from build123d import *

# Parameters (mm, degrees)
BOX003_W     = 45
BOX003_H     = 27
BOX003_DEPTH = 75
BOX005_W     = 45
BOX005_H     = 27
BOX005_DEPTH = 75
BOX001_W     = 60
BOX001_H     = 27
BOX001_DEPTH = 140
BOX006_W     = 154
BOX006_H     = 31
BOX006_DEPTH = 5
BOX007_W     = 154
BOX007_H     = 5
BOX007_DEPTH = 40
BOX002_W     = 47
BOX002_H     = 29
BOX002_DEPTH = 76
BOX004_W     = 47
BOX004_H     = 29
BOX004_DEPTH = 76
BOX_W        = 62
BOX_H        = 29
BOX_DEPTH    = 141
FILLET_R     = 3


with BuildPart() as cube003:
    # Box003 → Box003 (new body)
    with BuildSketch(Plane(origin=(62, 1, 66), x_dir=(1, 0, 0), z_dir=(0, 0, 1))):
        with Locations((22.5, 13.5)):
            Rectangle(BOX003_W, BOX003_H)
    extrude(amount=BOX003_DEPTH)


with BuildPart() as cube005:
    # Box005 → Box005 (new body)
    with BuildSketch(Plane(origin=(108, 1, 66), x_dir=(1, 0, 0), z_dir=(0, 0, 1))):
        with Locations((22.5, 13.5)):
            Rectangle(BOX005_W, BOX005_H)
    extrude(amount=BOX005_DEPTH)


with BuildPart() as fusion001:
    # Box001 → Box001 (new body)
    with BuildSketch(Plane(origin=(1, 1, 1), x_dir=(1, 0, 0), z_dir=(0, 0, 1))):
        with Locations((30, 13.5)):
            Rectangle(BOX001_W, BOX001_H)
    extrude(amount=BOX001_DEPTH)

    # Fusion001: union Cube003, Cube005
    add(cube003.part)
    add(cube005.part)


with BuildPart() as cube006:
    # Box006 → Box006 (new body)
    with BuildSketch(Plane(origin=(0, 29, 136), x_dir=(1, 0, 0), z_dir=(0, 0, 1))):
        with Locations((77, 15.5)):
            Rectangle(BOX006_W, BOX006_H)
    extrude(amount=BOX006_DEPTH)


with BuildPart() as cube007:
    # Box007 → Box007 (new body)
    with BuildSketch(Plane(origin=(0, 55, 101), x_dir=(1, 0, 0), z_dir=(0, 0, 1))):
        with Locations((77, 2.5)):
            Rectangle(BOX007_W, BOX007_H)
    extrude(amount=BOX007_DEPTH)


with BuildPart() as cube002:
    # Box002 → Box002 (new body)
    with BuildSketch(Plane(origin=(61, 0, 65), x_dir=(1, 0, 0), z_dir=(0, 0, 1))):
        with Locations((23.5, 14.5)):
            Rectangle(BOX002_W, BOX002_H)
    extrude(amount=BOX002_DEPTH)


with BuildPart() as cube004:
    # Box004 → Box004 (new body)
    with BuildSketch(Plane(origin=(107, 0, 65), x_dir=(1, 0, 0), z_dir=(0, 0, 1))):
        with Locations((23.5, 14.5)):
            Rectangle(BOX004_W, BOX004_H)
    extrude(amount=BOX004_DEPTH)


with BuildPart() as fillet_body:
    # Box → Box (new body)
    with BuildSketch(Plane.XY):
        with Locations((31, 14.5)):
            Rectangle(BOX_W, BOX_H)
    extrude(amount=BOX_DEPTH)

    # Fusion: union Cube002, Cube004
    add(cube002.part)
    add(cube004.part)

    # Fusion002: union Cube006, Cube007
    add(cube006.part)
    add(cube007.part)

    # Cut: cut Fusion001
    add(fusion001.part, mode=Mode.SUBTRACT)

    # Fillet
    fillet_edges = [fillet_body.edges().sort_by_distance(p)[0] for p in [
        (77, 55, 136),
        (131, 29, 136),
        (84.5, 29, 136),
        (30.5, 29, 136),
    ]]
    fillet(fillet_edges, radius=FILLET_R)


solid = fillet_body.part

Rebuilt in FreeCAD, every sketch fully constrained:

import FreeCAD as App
import Part
import Sketcher
Q = App.Units.Quantity


def edges_at(feature, points):
    """Names of the edges that pass closest to the given points."""
    edges = feature.Shape.Edges
    near = lambda p: min(range(len(edges)), key=lambda i: edges[i].distToShape(Part.Vertex(*p))[0])
    return sorted({f"Edge{near(p) + 1}" for p in points})

doc = App.newDocument("Part")
body = doc.addObject("PartDesign::Body", "Body")

# Sketch on XY plane
sketch1 = body.newObject("Sketcher::SketchObject", "Sketch")
sketch1.AttachmentSupport = (doc.getObject("XY_Plane"), [""])
sketch1.MapMode = "FlatFace"
sketch1.AttachmentOffset = App.Placement(App.Vector(0, 0, 66), App.Rotation())
sketch1.addGeometry([
    Part.LineSegment(App.Vector(62, 28, 0), App.Vector(62, 1, 0)),
    Part.LineSegment(App.Vector(62, 1, 0), App.Vector(107, 1, 0)),
    Part.LineSegment(App.Vector(107, 1, 0), App.Vector(107, 28, 0)),
    Part.LineSegment(App.Vector(107, 28, 0), App.Vector(62, 28, 0)),
], False)
sketch1.addConstraint([
    Sketcher.Constraint("Coincident", 0, 2, 1, 1),
    Sketcher.Constraint("Coincident", 1, 2, 2, 1),
    Sketcher.Constraint("Coincident", 2, 2, 3, 1),
    Sketcher.Constraint("Coincident", 3, 2, 0, 1),
    Sketcher.Constraint("Vertical", 0),
    Sketcher.Constraint("Horizontal", 1),
    Sketcher.Constraint("Vertical", 2),
    Sketcher.Constraint("Horizontal", 3),
    Sketcher.Constraint("DistanceX", 1, 1, 1, 2, Q("45 mm")),
    Sketcher.Constraint("DistanceY", 0, 2, 0, 1, Q("27 mm")),
    Sketcher.Constraint("DistanceX", -1, 1, 0, 2, Q("62 mm")),
    Sketcher.Constraint("DistanceY", -1, 1, 0, 2, Q("1 mm")),
])
pad1 = body.newObject("PartDesign::Pad", "Pad")
pad1.Profile = sketch1
pad1.Length = 75
body2 = doc.addObject("PartDesign::Body", "Body001")

# Sketch on XY plane
sketch2 = body2.newObject("Sketcher::SketchObject", "Sketch001")
sketch2.AttachmentSupport = (doc.getObject("XY_Plane001"), [""])
sketch2.MapMode = "FlatFace"
sketch2.AttachmentOffset = App.Placement(App.Vector(0, 0, 66), App.Rotation())
sketch2.addGeometry([
    Part.LineSegment(App.Vector(108, 28, 0), App.Vector(108, 1, 0)),
    Part.LineSegment(App.Vector(108, 1, 0), App.Vector(153, 1, 0)),
    Part.LineSegment(App.Vector(153, 1, 0), App.Vector(153, 28, 0)),
    Part.LineSegment(App.Vector(153, 28, 0), App.Vector(108, 28, 0)),
], False)
sketch2.addConstraint([
    Sketcher.Constraint("Coincident", 0, 2, 1, 1),
    Sketcher.Constraint("Coincident", 1, 2, 2, 1),
    Sketcher.Constraint("Coincident", 2, 2, 3, 1),
    Sketcher.Constraint("Coincident", 3, 2, 0, 1),
    Sketcher.Constraint("Vertical", 0),
    Sketcher.Constraint("Horizontal", 1),
    Sketcher.Constraint("Vertical", 2),
    Sketcher.Constraint("Horizontal", 3),
    Sketcher.Constraint("DistanceX", 1, 1, 1, 2, Q("45 mm")),
    Sketcher.Constraint("DistanceY", 0, 2, 0, 1, Q("27 mm")),
    Sketcher.Constraint("DistanceX", -1, 1, 0, 2, Q("108 mm")),
    Sketcher.Constraint("DistanceY", -1, 1, 0, 2, Q("1 mm")),
])
pad2 = body2.newObject("PartDesign::Pad", "Pad001")
pad2.Profile = sketch2
pad2.Length = 75
body3 = doc.addObject("PartDesign::Body", "Body002")
body3.AllowCompound = True

# Sketch on XY plane
sketch3 = body3.newObject("Sketcher::SketchObject", "Sketch002")
sketch3.AttachmentSupport = (doc.getObject("XY_Plane002"), [""])
sketch3.MapMode = "FlatFace"
sketch3.AttachmentOffset = App.Placement(App.Vector(0, 0, 1), App.Rotation())
sketch3.addGeometry([
    Part.LineSegment(App.Vector(1, 28, 0), App.Vector(1, 1, 0)),
    Part.LineSegment(App.Vector(1, 1, 0), App.Vector(61, 1, 0)),
    Part.LineSegment(App.Vector(61, 1, 0), App.Vector(61, 28, 0)),
    Part.LineSegment(App.Vector(61, 28, 0), App.Vector(1, 28, 0)),
], False)
sketch3.addConstraint([
    Sketcher.Constraint("Coincident", 0, 2, 1, 1),
    Sketcher.Constraint("Coincident", 1, 2, 2, 1),
    Sketcher.Constraint("Coincident", 2, 2, 3, 1),
    Sketcher.Constraint("Coincident", 3, 2, 0, 1),
    Sketcher.Constraint("Vertical", 0),
    Sketcher.Constraint("Horizontal", 1),
    Sketcher.Constraint("Vertical", 2),
    Sketcher.Constraint("Horizontal", 3),
    Sketcher.Constraint("DistanceX", 1, 1, 1, 2, Q("60 mm")),
    Sketcher.Constraint("DistanceY", 0, 2, 0, 1, Q("27 mm")),
    Sketcher.Constraint("DistanceX", -1, 1, 0, 2, Q("1 mm")),
    Sketcher.Constraint("DistanceY", -1, 1, 0, 2, Q("1 mm")),
])
pad3 = body3.newObject("PartDesign::Pad", "Pad002")
pad3.Profile = sketch3
pad3.Length = 140
doc.recompute()

boolean = body3.newObject("PartDesign::Boolean", "Boolean")
boolean.Type = "Fuse"
boolean.addObjects([body])
doc.recompute()

boolean2 = body3.newObject("PartDesign::Boolean", "Boolean001")
boolean2.Type = "Fuse"
boolean2.addObjects([body2])
body4 = doc.addObject("PartDesign::Body", "Body003")

# Sketch on XY plane
sketch4 = body4.newObject("Sketcher::SketchObject", "Sketch003")
sketch4.AttachmentSupport = (doc.getObject("XY_Plane003"), [""])
sketch4.MapMode = "FlatFace"
sketch4.AttachmentOffset = App.Placement(App.Vector(0, 0, 136), App.Rotation())
sketch4.addGeometry([
    Part.LineSegment(App.Vector(0, 60, 0), App.Vector(0, 29, 0)),
    Part.LineSegment(App.Vector(0, 29, 0), App.Vector(154, 29, 0)),
    Part.LineSegment(App.Vector(154, 29, 0), App.Vector(154, 60, 0)),
    Part.LineSegment(App.Vector(154, 60, 0), App.Vector(0, 60, 0)),
], False)
sketch4.addConstraint([
    Sketcher.Constraint("Coincident", 0, 2, 1, 1),
    Sketcher.Constraint("Coincident", 1, 2, 2, 1),
    Sketcher.Constraint("Coincident", 2, 2, 3, 1),
    Sketcher.Constraint("Coincident", 3, 2, 0, 1),
    Sketcher.Constraint("Vertical", 0),
    Sketcher.Constraint("Horizontal", 1),
    Sketcher.Constraint("Vertical", 2),
    Sketcher.Constraint("Horizontal", 3),
    Sketcher.Constraint("PointOnObject", 0, 2, -2),
    Sketcher.Constraint("DistanceX", 1, 1, 1, 2, Q("154 mm")),
    Sketcher.Constraint("DistanceY", 0, 2, 0, 1, Q("31 mm")),
    Sketcher.Constraint("DistanceY", -1, 1, 0, 2, Q("29 mm")),
])
pad4 = body4.newObject("PartDesign::Pad", "Pad003")
pad4.Profile = sketch4
pad4.Length = 5
body5 = doc.addObject("PartDesign::Body", "Body004")

# Sketch on XY plane
sketch5 = body5.newObject("Sketcher::SketchObject", "Sketch004")
sketch5.AttachmentSupport = (doc.getObject("XY_Plane004"), [""])
sketch5.MapMode = "FlatFace"
sketch5.AttachmentOffset = App.Placement(App.Vector(0, 0, 101), App.Rotation())
sketch5.addGeometry([
    Part.LineSegment(App.Vector(0, 60, 0), App.Vector(0, 55, 0)),
    Part.LineSegment(App.Vector(0, 55, 0), App.Vector(154, 55, 0)),
    Part.LineSegment(App.Vector(154, 55, 0), App.Vector(154, 60, 0)),
    Part.LineSegment(App.Vector(154, 60, 0), App.Vector(0, 60, 0)),
], False)
sketch5.addConstraint([
    Sketcher.Constraint("Coincident", 0, 2, 1, 1),
    Sketcher.Constraint("Coincident", 1, 2, 2, 1),
    Sketcher.Constraint("Coincident", 2, 2, 3, 1),
    Sketcher.Constraint("Coincident", 3, 2, 0, 1),
    Sketcher.Constraint("Vertical", 0),
    Sketcher.Constraint("Horizontal", 1),
    Sketcher.Constraint("Vertical", 2),
    Sketcher.Constraint("Horizontal", 3),
    Sketcher.Constraint("PointOnObject", 0, 2, -2),
    Sketcher.Constraint("DistanceX", 1, 1, 1, 2, Q("154 mm")),
    Sketcher.Constraint("DistanceY", 0, 2, 0, 1, Q("5 mm")),
    Sketcher.Constraint("DistanceY", -1, 1, 0, 2, Q("55 mm")),
])
pad5 = body5.newObject("PartDesign::Pad", "Pad004")
pad5.Profile = sketch5
pad5.Length = 40
body6 = doc.addObject("PartDesign::Body", "Body005")

# Sketch on XY plane
sketch6 = body6.newObject("Sketcher::SketchObject", "Sketch005")
sketch6.AttachmentSupport = (doc.getObject("XY_Plane005"), [""])
sketch6.MapMode = "FlatFace"
sketch6.AttachmentOffset = App.Placement(App.Vector(0, 0, 65), App.Rotation())
sketch6.addGeometry([
    Part.LineSegment(App.Vector(61, 29, 0), App.Vector(61, 0, 0)),
    Part.LineSegment(App.Vector(61, 0, 0), App.Vector(108, 0, 0)),
    Part.LineSegment(App.Vector(108, 0, 0), App.Vector(108, 29, 0)),
    Part.LineSegment(App.Vector(108, 29, 0), App.Vector(61, 29, 0)),
], False)
sketch6.addConstraint([
    Sketcher.Constraint("Coincident", 0, 2, 1, 1),
    Sketcher.Constraint("Coincident", 1, 2, 2, 1),
    Sketcher.Constraint("Coincident", 2, 2, 3, 1),
    Sketcher.Constraint("Coincident", 3, 2, 0, 1),
    Sketcher.Constraint("Vertical", 0),
    Sketcher.Constraint("Horizontal", 1),
    Sketcher.Constraint("Vertical", 2),
    Sketcher.Constraint("Horizontal", 3),
    Sketcher.Constraint("PointOnObject", 0, 2, -1),
    Sketcher.Constraint("DistanceX", 1, 1, 1, 2, Q("47 mm")),
    Sketcher.Constraint("DistanceY", 0, 2, 0, 1, Q("29 mm")),
    Sketcher.Constraint("DistanceX", -1, 1, 0, 2, Q("61 mm")),
])
pad6 = body6.newObject("PartDesign::Pad", "Pad005")
pad6.Profile = sketch6
pad6.Length = 76
body7 = doc.addObject("PartDesign::Body", "Body006")

# Sketch on XY plane
sketch7 = body7.newObject("Sketcher::SketchObject", "Sketch006")
sketch7.AttachmentSupport = (doc.getObject("XY_Plane006"), [""])
sketch7.MapMode = "FlatFace"
sketch7.AttachmentOffset = App.Placement(App.Vector(0, 0, 65), App.Rotation())
sketch7.addGeometry([
    Part.LineSegment(App.Vector(107, 29, 0), App.Vector(107, 0, 0)),
    Part.LineSegment(App.Vector(107, 0, 0), App.Vector(154, 0, 0)),
    Part.LineSegment(App.Vector(154, 0, 0), App.Vector(154, 29, 0)),
    Part.LineSegment(App.Vector(154, 29, 0), App.Vector(107, 29, 0)),
], False)
sketch7.addConstraint([
    Sketcher.Constraint("Coincident", 0, 2, 1, 1),
    Sketcher.Constraint("Coincident", 1, 2, 2, 1),
    Sketcher.Constraint("Coincident", 2, 2, 3, 1),
    Sketcher.Constraint("Coincident", 3, 2, 0, 1),
    Sketcher.Constraint("Vertical", 0),
    Sketcher.Constraint("Horizontal", 1),
    Sketcher.Constraint("Vertical", 2),
    Sketcher.Constraint("Horizontal", 3),
    Sketcher.Constraint("PointOnObject", 0, 2, -1),
    Sketcher.Constraint("DistanceX", 1, 1, 1, 2, Q("47 mm")),
    Sketcher.Constraint("DistanceY", 0, 2, 0, 1, Q("29 mm")),
    Sketcher.Constraint("DistanceX", -1, 1, 0, 2, Q("107 mm")),
])
pad7 = body7.newObject("PartDesign::Pad", "Pad006")
pad7.Profile = sketch7
pad7.Length = 76
body8 = doc.addObject("PartDesign::Body", "Body007")

# Sketch on XY plane
sketch8 = body8.newObject("Sketcher::SketchObject", "Sketch007")
sketch8.AttachmentSupport = (doc.getObject("XY_Plane007"), [""])
sketch8.MapMode = "FlatFace"
sketch8.addGeometry([
    Part.LineSegment(App.Vector(0, 29, 0), App.Vector(0, 0, 0)),
    Part.LineSegment(App.Vector(0, 0, 0), App.Vector(62, 0, 0)),
    Part.LineSegment(App.Vector(62, 0, 0), App.Vector(62, 29, 0)),
    Part.LineSegment(App.Vector(62, 29, 0), App.Vector(0, 29, 0)),
], False)
sketch8.addConstraint([
    Sketcher.Constraint("Coincident", 0, 2, 1, 1),
    Sketcher.Constraint("Coincident", 1, 2, 2, 1),
    Sketcher.Constraint("Coincident", 2, 2, 3, 1),
    Sketcher.Constraint("Coincident", 3, 2, 0, 1),
    Sketcher.Constraint("Vertical", 0),
    Sketcher.Constraint("Horizontal", 1),
    Sketcher.Constraint("Vertical", 2),
    Sketcher.Constraint("Horizontal", 3),
    Sketcher.Constraint("Coincident", 0, 2, -1, 1),
    Sketcher.Constraint("DistanceX", 1, 1, 1, 2, Q("62 mm")),
    Sketcher.Constraint("DistanceY", 0, 2, 0, 1, Q("29 mm")),
])
pad8 = body8.newObject("PartDesign::Pad", "Pad007")
pad8.Profile = sketch8
pad8.Length = 141
doc.recompute()

boolean3 = body8.newObject("PartDesign::Boolean", "Boolean002")
boolean3.Type = "Fuse"
boolean3.addObjects([body6])
doc.recompute()

boolean4 = body8.newObject("PartDesign::Boolean", "Boolean003")
boolean4.Type = "Fuse"
boolean4.addObjects([body7])
doc.recompute()

boolean5 = body8.newObject("PartDesign::Boolean", "Boolean004")
boolean5.Type = "Fuse"
boolean5.addObjects([body4])
doc.recompute()

boolean6 = body8.newObject("PartDesign::Boolean", "Boolean005")
boolean6.Type = "Fuse"
boolean6.addObjects([body5])
doc.recompute()

boolean7 = body8.newObject("PartDesign::Boolean", "Boolean006")
boolean7.Type = "Cut"
boolean7.addObjects([body3])
doc.recompute()

fillet = body8.newObject("PartDesign::Fillet", "Fillet")
fillet.Base = (boolean7, edges_at(boolean7, [
    (77, 55, 136),
    (77, 29, 136),
    (77, 29, 136),
    (77, 29, 136),
]))
fillet.Radius = 3

doc.recompute()
